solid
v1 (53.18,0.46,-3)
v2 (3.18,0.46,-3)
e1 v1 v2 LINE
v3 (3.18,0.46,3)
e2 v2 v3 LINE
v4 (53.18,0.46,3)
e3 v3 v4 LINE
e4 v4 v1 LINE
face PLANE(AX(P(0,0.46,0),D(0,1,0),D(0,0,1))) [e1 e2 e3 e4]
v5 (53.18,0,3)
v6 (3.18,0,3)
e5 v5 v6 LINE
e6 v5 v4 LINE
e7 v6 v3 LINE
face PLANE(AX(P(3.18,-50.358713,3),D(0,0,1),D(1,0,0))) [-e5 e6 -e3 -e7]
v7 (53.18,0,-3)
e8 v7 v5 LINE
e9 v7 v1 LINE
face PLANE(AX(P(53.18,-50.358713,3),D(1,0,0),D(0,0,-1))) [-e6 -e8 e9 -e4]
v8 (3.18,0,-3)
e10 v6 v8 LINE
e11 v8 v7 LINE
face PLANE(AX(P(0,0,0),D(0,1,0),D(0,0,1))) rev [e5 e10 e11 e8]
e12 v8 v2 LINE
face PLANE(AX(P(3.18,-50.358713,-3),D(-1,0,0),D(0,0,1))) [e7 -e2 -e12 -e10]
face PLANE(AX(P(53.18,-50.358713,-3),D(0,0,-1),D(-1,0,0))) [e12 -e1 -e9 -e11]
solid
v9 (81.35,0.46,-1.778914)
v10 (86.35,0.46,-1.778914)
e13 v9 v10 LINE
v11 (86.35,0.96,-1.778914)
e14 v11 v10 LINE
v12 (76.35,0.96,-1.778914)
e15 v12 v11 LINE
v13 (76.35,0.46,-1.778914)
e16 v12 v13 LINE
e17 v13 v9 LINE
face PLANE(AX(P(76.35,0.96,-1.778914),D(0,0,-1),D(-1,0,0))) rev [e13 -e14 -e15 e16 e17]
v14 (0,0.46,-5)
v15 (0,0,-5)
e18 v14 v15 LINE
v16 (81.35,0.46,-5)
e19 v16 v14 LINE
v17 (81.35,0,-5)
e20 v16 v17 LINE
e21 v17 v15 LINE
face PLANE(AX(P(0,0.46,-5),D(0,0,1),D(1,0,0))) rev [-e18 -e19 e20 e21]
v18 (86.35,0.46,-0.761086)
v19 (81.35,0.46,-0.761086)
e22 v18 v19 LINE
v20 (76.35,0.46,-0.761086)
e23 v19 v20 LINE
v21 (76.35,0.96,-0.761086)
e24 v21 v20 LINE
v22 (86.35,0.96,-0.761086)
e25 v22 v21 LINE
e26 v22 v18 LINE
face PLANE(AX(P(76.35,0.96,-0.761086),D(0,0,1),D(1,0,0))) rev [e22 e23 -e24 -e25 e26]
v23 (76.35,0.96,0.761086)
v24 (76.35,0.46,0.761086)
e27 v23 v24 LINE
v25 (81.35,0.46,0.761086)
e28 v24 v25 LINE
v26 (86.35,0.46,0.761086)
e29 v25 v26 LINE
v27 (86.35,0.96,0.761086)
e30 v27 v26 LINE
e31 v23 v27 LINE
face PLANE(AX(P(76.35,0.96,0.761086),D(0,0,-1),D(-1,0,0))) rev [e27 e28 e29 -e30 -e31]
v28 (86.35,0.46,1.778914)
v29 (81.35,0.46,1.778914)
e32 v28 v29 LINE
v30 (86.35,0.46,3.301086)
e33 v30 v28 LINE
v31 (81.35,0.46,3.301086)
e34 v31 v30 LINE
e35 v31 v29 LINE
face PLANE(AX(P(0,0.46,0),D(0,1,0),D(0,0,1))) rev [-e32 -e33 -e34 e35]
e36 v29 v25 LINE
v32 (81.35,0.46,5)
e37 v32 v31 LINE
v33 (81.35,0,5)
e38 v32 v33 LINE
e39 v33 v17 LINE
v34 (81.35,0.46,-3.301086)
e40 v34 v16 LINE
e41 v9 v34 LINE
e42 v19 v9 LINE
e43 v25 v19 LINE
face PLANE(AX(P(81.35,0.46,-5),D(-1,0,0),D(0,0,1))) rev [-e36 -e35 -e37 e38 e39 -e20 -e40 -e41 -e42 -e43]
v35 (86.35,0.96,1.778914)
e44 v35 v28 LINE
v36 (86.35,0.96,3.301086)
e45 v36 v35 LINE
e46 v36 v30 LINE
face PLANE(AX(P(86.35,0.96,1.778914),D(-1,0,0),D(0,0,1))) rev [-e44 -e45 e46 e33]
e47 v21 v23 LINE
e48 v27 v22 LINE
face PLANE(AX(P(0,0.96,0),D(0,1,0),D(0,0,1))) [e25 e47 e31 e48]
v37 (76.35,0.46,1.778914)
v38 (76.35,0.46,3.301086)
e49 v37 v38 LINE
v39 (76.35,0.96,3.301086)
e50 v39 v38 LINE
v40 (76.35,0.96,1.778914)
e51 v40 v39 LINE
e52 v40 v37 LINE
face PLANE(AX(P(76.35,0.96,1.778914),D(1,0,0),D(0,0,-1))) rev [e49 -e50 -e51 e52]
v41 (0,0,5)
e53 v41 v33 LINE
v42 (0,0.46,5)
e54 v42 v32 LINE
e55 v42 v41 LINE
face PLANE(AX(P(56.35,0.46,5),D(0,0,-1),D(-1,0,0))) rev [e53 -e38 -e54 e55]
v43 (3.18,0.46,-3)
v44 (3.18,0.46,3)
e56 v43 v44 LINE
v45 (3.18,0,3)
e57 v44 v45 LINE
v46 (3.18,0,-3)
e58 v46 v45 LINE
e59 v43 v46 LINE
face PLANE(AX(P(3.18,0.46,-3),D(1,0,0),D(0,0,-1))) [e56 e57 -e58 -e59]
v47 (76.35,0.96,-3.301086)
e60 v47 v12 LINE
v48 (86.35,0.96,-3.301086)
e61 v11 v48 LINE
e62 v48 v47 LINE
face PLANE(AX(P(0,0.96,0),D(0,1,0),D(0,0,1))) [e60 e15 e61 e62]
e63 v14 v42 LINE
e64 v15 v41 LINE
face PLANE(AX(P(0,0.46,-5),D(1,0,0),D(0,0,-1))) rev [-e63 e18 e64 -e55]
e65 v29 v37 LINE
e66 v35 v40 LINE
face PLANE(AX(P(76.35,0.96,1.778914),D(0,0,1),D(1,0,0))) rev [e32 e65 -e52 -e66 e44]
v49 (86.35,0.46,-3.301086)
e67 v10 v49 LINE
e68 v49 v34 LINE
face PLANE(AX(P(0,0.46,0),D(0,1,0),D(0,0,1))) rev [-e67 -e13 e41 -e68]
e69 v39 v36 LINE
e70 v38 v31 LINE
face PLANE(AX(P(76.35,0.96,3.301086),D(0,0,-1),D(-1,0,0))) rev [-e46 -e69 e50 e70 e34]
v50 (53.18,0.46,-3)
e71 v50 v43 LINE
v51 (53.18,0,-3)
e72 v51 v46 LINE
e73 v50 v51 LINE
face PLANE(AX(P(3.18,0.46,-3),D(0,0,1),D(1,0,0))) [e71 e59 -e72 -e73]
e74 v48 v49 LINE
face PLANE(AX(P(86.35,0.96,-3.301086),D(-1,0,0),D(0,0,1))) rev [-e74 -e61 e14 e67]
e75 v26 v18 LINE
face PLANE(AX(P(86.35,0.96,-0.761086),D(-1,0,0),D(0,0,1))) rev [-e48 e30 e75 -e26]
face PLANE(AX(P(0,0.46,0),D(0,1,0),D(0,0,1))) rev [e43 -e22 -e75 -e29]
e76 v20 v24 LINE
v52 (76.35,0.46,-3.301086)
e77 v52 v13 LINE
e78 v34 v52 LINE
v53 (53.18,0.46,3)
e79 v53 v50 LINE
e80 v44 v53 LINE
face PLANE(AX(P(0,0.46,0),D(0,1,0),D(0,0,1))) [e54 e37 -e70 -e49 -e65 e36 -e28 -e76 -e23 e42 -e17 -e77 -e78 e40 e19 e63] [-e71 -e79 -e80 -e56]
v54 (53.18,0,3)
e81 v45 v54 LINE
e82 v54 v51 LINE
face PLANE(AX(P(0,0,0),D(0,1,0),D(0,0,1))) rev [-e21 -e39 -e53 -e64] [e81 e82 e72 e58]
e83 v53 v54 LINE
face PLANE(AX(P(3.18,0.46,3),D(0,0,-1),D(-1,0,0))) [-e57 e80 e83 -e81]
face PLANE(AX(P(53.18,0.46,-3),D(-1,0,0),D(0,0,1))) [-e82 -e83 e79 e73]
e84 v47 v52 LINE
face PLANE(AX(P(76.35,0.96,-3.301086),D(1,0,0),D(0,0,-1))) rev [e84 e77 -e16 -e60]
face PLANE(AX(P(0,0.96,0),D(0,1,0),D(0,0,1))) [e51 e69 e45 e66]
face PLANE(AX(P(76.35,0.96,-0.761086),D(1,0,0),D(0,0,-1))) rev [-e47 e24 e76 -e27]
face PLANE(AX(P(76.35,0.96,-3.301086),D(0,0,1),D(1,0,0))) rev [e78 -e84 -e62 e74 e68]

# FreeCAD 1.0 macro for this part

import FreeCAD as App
import Part
import Sketcher

V = App.Vector

doc = App.newDocument("Part")
body = doc.addObject("PartDesign::Body", "Body")

# Sketch on XZ plane
sketch1 = body.newObject("Sketcher::SketchObject", "Sketch")
sketch1.AttachmentSupport = (doc.getObject("XZ_Plane"), [""])
sketch1.MapMode = "FlatFace"
sketch1.addGeometry([
    Part.LineSegment(V(81, -5, 0), V(0, -5, 0)),  # 0
    Part.LineSegment(V(0, -5, 0), V(0, 5, 0)),  # 1
    Part.LineSegment(V(0, 5, 0), V(81, 5, 0)),  # 2
    Part.LineSegment(V(81, 5, 0), V(81, -5, 0)),  # 3
    Part.LineSegment(V(3, 3, 0), V(3, -3, 0)),  # 4
    Part.LineSegment(V(3, -3, 0), V(53, -3, 0)),  # 5
    Part.LineSegment(V(53, -3, 0), V(53, 3, 0)),  # 6
    Part.LineSegment(V(53, 3, 0), V(3, 3, 0)),  # 7
], False)
sketch1.addConstraint([
    Sketcher.Constraint("Coincident", 0, 2, 1, 1),
    Sketcher.Constraint("Coincident", 1, 2, 2, 1),
    Sketcher.Constraint("Coincident", 2, 2, 3, 1),
    Sketcher.Constraint("Coincident", 3, 2, 0, 1),
    Sketcher.Constraint("Coincident", 4, 2, 5, 1),
    Sketcher.Constraint("Coincident", 5, 2, 6, 1),
    Sketcher.Constraint("Coincident", 6, 2, 7, 1),
    Sketcher.Constraint("Coincident", 7, 2, 4, 1),
    Sketcher.Constraint("Horizontal", 0),
    Sketcher.Constraint("Vertical", 1),
    Sketcher.Constraint("Horizontal", 2),
    Sketcher.Constraint("Vertical", 3),
    Sketcher.Constraint("Vertical", 4),
    Sketcher.Constraint("Horizontal", 5),
    Sketcher.Constraint("Vertical", 6),
    Sketcher.Constraint("Horizontal", 7),
    Sketcher.Constraint("Symmetric", 0, 2, 1, 2, -1, 1),
    Sketcher.Constraint("DistanceX", 5, 1, 5, 2, 50.0),
    Sketcher.Constraint("DistanceY", 1, 1, 1, 2, 10.0),
    Sketcher.Constraint("DistanceY", 4, 2, 4, 1, 6.0),
    Sketcher.Constraint("DistanceY", 4, 2, -1, 1, 3.0),
    Sketcher.Constraint("DistanceX", 0, 2, 0, 1, 81.35),
    Sketcher.Constraint("DistanceX", -1, 1, 4, 2, 3.18),
])
pad1 = body.newObject("PartDesign::Pad", "Pad")
pad1.Profile = sketch1
pad1.Length = 0.46
pad1.Reversed = True

# Sketch on XZ plane
sketch2 = body.newObject("Sketcher::SketchObject", "Sketch001")
sketch2.AttachmentSupport = (doc.getObject("XZ_Plane"), [""])
sketch2.MapMode = "FlatFace"
sketch2.AttachmentOffset = App.Placement(V(0, 0, -0.46), App.Rotation())
sketch2.addGeometry([
    Part.LineSegment(V(76.3, -3.3, 0), V(76.3, -1.8, 0)),  # 0
    Part.LineSegment(V(76.3, -1.8, 0), V(86.3, -1.8, 0)),  # 1
    Part.LineSegment(V(86.3, -1.8, 0), V(86.3, -3.3, 0)),  # 2
    Part.LineSegment(V(86.3, -3.3, 0), V(76.3, -3.3, 0)),  # 3
    Part.LineSegment(V(76.3, -0.8, 0), V(76.3, 0.8, 0)),  # 4
    Part.LineSegment(V(76.3, 0.8, 0), V(86.3, 0.8, 0)),  # 5
    Part.LineSegment(V(86.3, 0.8, 0), V(86.3, -0.8, 0)),  # 6
    Part.LineSegment(V(86.3, -0.8, 0), V(76.3, -0.8, 0)),  # 7
    Part.LineSegment(V(76.3, 1.8, 0), V(76.3, 3.3, 0)),  # 8
    Part.LineSegment(V(76.3, 3.3, 0), V(86.3, 3.3, 0)),  # 9
    Part.LineSegment(V(86.3, 3.3, 0), V(86.3, 1.8, 0)),  # 10
    Part.LineSegment(V(86.3, 1.8, 0), V(76.3, 1.8, 0)),  # 11
], False)
sketch2.addConstraint([
    Sketcher.Constraint("Coincident", 0, 2, 1, 1),
    Sketcher.Constraint("Coincident", 1, 2, 2, 1),
    Sketcher.Constraint("Coincident", 2, 2, 3, 1),
    Sketcher.Constraint("Coincident", 3, 2, 0, 1),
    Sketcher.Constraint("Coincident", 4, 2, 5, 1),
    Sketcher.Constraint("Coincident", 5, 2, 6, 1),
    Sketcher.Constraint("Coincident", 6, 2, 7, 1),
    Sketcher.Constraint("Coincident", 7, 2, 4, 1),
    Sketcher.Constraint("Coincident", 8, 2, 9, 1),
    Sketcher.Constraint("Coincident", 9, 2, 10, 1),
    Sketcher.Constraint("Coincident", 10, 2, 11, 1),
    Sketcher.Constraint("Coincident", 11, 2, 8, 1),
    Sketcher.Constraint("Vertical", 0),
    Sketcher.Constraint("Horizontal", 1),
    Sketcher.Constraint("Vertical", 2),
    Sketcher.Constraint("Horizontal", 3),
    Sketcher.Constraint("Vertical", 4),
    Sketcher.Constraint("Horizontal", 5),
    Sketcher.Constraint("Vertical", 6),
    Sketcher.Constraint("Horizontal", 7),
    Sketcher.Constraint("Vertical", 8),
    Sketcher.Constraint("Horizontal", 9),
    Sketcher.Constraint("Vertical", 10),
    Sketcher.Constraint("Horizontal", 11),
    Sketcher.Constraint("Symmetric", 3, 2, 8, 2, -1),
    Sketcher.Constraint("Symmetric", 1, 2, 10, 2, -1),
    Sketcher.Constraint("Vertical", 3, 2, 4, 2),
    Sketcher.Constraint("Vertical", 2, 2, 5, 2),
    Sketcher.Constraint("Equal", 2, 4),
    Sketcher.Constraint("DistanceX", 1, 1, 1, 2, 10.0),
    Sketcher.Constraint("DistanceX", -1, 1, 0, 2, 76.35),
    Sketcher.Constraint("DistanceY", 0, 2, 4, 2, 2.54),
    Sketcher.Constraint("DistanceY", 4, 2, 8, 2, 2.54),
    Sketcher.Constraint("DistanceY", 0, 1, 0, 2, 1.522172),
])
pad2 = body.newObject("PartDesign::Pad", "Pad001")
pad2.Profile = sketch2
pad2.Length = 0.5
pad2.Reversed = True
body2 = doc.addObject("PartDesign::Body", "Body001")

# Sketch on XZ plane
sketch3 = body2.newObject("Sketcher::SketchObject", "Sketch002")
sketch3.AttachmentSupport = (doc.getObject("XZ_Plane001"), [""])
sketch3.MapMode = "FlatFace"
sketch3.AttachmentOffset = App.Placement(V(0, 0, -0.46), App.Rotation())
sketch3.addGeometry([
    Part.LineSegment(V(3, -3, 0), V(3, 3, 0)),
    Part.LineSegment(V(3, 3, 0), V(53, 3, 0)),
    Part.LineSegment(V(53, 3, 0), V(53, -3, 0)),
    Part.LineSegment(V(53, -3, 0), V(3, -3, 0)),
], False)
sketch3.addConstraint([
    Sketcher.Constraint("Coincident", 0, 2, 1, 1),
    Sketcher.Constraint("Coincident", 1, 2, 2, 1),
    Sketcher.Constraint("Coincident", 2, 2, 3, 1),
    Sketcher.Constraint("Coincident", 3, 2, 0, 1),
    Sketcher.Constraint("Vertical", 0),
    Sketcher.Constraint("Horizontal", 1),
    Sketcher.Constraint("Vertical", 2),
    Sketcher.Constraint("Horizontal", 3),
    Sketcher.Constraint("DistanceX", 1, 1, 1, 2, 50.0),
    Sketcher.Constraint("DistanceY", 0, 1, 0, 2, 6.0),
    Sketcher.Constraint("DistanceY", -1, 1, 0, 2, 3.0),
    Sketcher.Constraint("DistanceX", -1, 1, 0, 2, 3.18),
])
pad3 = body2.newObject("PartDesign::Pad", "Pad002")
pad3.Profile = sketch3
pad3.Length = 0.46

doc.recompute()
